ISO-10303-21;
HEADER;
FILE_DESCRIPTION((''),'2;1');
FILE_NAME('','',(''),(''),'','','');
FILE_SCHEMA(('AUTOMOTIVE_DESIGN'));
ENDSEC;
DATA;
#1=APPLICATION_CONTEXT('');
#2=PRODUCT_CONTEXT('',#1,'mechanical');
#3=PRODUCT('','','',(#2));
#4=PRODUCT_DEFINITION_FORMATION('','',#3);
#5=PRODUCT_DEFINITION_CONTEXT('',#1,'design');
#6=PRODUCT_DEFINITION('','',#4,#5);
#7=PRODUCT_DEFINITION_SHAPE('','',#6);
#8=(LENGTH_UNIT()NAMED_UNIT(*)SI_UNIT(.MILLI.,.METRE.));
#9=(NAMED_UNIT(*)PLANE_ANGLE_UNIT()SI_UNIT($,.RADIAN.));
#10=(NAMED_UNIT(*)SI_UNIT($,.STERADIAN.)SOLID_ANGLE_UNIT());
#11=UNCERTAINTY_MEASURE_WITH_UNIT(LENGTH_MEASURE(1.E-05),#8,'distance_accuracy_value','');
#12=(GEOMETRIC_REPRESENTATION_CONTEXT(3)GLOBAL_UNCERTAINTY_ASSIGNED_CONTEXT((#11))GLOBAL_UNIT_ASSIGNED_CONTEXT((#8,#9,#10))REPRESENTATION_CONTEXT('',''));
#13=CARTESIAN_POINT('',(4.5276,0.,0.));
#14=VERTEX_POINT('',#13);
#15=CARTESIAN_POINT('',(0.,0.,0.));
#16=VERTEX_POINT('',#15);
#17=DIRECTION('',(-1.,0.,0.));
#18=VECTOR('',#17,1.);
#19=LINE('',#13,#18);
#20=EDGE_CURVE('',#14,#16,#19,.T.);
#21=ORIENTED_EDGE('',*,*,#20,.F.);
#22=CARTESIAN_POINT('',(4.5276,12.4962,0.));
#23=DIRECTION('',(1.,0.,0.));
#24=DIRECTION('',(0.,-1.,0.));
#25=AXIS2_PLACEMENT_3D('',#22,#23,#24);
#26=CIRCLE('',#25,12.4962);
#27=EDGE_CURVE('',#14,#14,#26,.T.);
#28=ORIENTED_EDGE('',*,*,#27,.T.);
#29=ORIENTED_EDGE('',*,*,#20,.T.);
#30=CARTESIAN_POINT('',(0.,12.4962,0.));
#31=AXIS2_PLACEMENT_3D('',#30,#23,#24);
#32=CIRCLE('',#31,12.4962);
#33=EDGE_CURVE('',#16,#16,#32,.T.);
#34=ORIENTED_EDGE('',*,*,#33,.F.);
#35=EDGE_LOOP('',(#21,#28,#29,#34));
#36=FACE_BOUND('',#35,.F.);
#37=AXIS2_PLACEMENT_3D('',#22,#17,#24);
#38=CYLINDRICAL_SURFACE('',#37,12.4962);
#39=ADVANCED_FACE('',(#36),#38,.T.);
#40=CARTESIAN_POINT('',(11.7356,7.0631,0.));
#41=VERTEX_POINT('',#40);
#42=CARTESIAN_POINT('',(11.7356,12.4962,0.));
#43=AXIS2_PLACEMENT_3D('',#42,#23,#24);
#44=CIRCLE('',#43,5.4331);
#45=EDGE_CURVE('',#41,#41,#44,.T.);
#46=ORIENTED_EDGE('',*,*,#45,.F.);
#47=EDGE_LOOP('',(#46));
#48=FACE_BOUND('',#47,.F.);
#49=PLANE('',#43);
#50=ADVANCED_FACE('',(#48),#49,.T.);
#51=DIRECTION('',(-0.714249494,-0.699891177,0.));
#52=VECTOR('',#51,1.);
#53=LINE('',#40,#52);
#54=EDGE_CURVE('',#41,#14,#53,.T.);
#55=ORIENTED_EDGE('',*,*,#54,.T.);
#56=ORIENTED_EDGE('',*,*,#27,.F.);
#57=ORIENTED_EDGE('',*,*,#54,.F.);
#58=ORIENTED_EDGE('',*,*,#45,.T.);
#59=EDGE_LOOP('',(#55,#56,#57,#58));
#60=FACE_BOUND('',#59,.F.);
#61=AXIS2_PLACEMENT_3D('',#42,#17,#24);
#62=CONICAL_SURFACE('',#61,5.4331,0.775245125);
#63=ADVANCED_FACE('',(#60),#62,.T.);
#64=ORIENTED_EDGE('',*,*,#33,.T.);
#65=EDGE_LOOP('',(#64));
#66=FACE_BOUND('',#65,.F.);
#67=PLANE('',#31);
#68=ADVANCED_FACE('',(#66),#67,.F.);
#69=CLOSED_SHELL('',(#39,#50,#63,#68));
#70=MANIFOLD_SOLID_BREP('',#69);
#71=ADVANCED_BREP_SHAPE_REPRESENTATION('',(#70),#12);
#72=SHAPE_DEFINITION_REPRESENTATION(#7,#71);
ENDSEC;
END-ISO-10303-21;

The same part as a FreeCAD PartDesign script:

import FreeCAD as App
import Part
import Sketcher

doc = App.newDocument("Part")
body = doc.addObject("PartDesign::Body", "Body")

# Sketch on XY plane
sketch1 = body.newObject("Sketcher::SketchObject", "Sketch")
sketch1.AttachmentSupport = (doc.getObject("XY_Plane"), [""])
sketch1.MapMode = "FlatFace"
sketch1.addGeometry([
    Part.LineSegment(App.Vector(0, 12.5, 0), App.Vector(0, 0, 0)),  # 0
    Part.LineSegment(App.Vector(0, 0, 0), App.Vector(4.5, 0, 0)),  # 1
    Part.LineSegment(App.Vector(4.5, 0, 0), App.Vector(11.7, 7.1, 0)),  # 2
    Part.LineSegment(App.Vector(11.7, 7.1, 0), App.Vector(11.7, 12.5, 0)),  # 3
    Part.LineSegment(App.Vector(11.7, 12.5, 0), App.Vector(0, 12.5, 0)),  # 4
], False)
sketch1.addGeometry(Part.LineSegment(App.Vector(0, 12.5, 0), App.Vector(11.7, 12.5, 0)), True)  # axis
sketch1.addConstraint([
    Sketcher.Constraint("Coincident", 0, 2, 1, 1),
    Sketcher.Constraint("Coincident", 1, 2, 2, 1),
    Sketcher.Constraint("Coincident", 2, 2, 3, 1),
    Sketcher.Constraint("Coincident", 3, 2, 4, 1),
    Sketcher.Constraint("Coincident", 4, 2, 0, 1),
    Sketcher.Constraint("Vertical", 0),
    Sketcher.Constraint("Horizontal", 1),
    Sketcher.Constraint("Vertical", 3),
    Sketcher.Constraint("Horizontal", 4),
    Sketcher.Constraint("Horizontal", 5),
    Sketcher.Constraint("Coincident", 0, 2, -1, 1),
    Sketcher.Constraint("Coincident", 5, 1, 4, 2),
    Sketcher.Constraint("Vertical", 2, 2, 5, 2),
    Sketcher.Constraint("DistanceY", 3, 1, 3, 2, 5.433),
    Sketcher.Constraint("DistanceX", 1, 1, 1, 2, 4.5276),
    Sketcher.Constraint("DistanceX", 4, 2, 4, 1, 11.7356),
    Sketcher.Constraint("DistanceY", 0, 2, 0, 1, 12.4962),
])
revolution = body.newObject("PartDesign::Revolution", "Revolution")
revolution.Profile = sketch1
revolution.ReferenceAxis = (sketch1, ["Axis0"])
revolution.Angle = 360

doc.recompute()
